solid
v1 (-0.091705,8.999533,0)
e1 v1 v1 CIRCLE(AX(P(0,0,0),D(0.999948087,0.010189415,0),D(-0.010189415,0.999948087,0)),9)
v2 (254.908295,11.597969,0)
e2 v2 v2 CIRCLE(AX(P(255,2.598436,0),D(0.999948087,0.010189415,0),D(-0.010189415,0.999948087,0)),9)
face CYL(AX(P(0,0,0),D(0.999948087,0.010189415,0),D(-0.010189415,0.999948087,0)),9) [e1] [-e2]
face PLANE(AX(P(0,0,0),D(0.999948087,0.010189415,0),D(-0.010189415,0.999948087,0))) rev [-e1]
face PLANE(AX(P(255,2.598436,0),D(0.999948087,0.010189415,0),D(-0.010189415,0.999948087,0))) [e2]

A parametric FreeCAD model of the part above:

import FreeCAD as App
import Part
import Sketcher
from FreeCAD import Vector
Q = App.Units.Quantity

doc = App.newDocument("Part")
params = doc.addObject("Spreadsheet::Sheet", "Params")
for row, (alias, value) in enumerate([
    ("sketch1_diameter", "18 mm"),
], start=1):
    params.set(f"A{row}", alias)
    params.set(f"B{row}", "=" + value)
    params.setAlias(f"B{row}", alias)

body = doc.addObject("PartDesign::Body", "Body")

# Sketch on an angled plane
sketch1 = body.newObject("Sketcher::SketchObject", "Sketch")
sketch1.Placement = App.Placement(Vector(0, 0, 0), App.Rotation(Vector(-0.010189415, 0.999948087, 0), Vector(0, 0, 1.000000001), Vector(0.999948087, 0.010189415, 0), "ZXY"))
sketch1.addGeometry(Part.Circle(Vector(0, 0, 0), Vector(0, 0, 1), 9), False)
sketch1.addConstraint([
    Sketcher.Constraint("Coincident", 0, 3, -1, 1),
    Sketcher.Constraint("Diameter", 0, Q("18 mm")),
])
sketch1.setExpression("Constraints[1]", "Params.sketch1_diameter")

# Sketch on an angled plane
sketch2 = body.newObject("Sketcher::SketchObject", "Sketch001")
sketch2.Placement = App.Placement(Vector(0, 0, 0), App.Rotation(Vector(0.999948087, 0.010189415, 0), Vector(0, 0, 1.000000001), Vector(0.010189415, -0.999948087, 0), "ZXY"))
sketch2.addGeometry(Part.LineSegment(Vector(0, 0, 0), Vector(255, 0, 0)), False)
sketch2.addConstraint([
    Sketcher.Constraint("Horizontal", 0),
    Sketcher.Constraint("Coincident", 0, 1, -1, 1),
    Sketcher.Constraint("DistanceX", 0, 1, 0, 2, Q("255.013239 mm")),
])
doc.recompute()

additivepipe = body.newObject("PartDesign::AdditivePipe", "AdditivePipe")
additivepipe.Profile = sketch1
additivepipe.Spine = (sketch2, ["Edge1"])

doc.recompute()
